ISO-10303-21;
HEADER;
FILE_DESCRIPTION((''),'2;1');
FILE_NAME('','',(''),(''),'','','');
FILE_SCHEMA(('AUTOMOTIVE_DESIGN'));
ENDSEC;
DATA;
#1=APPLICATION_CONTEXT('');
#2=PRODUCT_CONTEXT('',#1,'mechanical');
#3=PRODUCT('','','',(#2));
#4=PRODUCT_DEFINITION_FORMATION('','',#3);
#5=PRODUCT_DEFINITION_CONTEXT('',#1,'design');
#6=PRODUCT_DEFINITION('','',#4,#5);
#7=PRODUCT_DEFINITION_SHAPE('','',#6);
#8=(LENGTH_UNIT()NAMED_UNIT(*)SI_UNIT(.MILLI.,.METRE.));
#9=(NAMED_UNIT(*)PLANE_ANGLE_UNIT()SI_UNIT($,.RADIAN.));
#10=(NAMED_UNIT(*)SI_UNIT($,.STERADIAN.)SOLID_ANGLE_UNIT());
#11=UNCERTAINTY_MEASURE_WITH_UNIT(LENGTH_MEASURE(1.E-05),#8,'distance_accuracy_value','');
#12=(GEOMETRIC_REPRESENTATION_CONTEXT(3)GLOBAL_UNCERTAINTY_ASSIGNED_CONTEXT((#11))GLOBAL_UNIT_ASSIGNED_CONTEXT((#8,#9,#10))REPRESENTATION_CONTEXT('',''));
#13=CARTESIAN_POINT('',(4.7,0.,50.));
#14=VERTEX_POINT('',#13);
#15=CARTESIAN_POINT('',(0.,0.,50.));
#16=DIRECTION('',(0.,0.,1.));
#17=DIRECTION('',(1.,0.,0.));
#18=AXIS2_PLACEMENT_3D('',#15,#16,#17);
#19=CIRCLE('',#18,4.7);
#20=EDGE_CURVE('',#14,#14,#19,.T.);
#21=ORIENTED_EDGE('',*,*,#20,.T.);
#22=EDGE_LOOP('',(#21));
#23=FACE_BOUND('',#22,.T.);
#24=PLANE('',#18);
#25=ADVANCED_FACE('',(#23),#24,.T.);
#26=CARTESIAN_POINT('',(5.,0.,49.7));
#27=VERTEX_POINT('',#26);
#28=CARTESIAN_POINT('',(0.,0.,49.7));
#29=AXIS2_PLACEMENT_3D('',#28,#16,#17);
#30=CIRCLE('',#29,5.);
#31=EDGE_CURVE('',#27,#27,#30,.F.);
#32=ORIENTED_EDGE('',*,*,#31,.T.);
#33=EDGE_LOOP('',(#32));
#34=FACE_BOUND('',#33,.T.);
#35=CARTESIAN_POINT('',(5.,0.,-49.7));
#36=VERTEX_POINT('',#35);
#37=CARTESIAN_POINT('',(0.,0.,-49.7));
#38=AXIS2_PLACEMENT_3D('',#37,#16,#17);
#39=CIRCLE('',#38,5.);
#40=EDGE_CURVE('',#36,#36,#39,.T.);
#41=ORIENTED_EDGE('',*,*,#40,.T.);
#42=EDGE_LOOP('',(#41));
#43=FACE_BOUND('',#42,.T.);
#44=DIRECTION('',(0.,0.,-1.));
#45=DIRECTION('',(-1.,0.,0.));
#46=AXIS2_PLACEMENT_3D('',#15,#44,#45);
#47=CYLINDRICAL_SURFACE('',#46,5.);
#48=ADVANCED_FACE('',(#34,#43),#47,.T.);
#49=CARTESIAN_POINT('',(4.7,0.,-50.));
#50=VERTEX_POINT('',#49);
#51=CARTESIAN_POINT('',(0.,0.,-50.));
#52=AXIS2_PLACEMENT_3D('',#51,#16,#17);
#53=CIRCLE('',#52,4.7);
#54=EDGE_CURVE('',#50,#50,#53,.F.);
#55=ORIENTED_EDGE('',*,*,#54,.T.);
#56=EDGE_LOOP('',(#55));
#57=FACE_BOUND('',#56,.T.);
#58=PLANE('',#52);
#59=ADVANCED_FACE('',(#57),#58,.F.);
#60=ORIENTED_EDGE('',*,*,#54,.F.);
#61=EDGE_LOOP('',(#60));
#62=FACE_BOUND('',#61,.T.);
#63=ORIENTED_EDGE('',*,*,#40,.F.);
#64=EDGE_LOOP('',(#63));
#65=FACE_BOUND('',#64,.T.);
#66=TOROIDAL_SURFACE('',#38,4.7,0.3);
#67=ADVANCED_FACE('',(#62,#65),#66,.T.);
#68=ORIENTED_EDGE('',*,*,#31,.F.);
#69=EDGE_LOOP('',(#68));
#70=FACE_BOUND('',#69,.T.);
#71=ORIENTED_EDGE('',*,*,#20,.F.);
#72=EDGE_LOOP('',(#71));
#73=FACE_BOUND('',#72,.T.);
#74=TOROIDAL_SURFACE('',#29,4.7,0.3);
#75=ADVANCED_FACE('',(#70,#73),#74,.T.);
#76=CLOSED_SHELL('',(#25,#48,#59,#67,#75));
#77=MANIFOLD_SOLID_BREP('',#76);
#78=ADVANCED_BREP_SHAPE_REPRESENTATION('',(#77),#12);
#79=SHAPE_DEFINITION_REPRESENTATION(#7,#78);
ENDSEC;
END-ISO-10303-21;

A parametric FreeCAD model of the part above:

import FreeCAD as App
import Part
import Sketcher

V = App.Vector


def edges_at(feature, points):
    """Names of the edges that pass closest to the given points."""
    edges = feature.Shape.Edges
    near = lambda p: min(range(len(edges)), key=lambda i: edges[i].distToShape(Part.Vertex(*p))[0])
    return sorted({f"Edge{near(p) + 1}" for p in points})

doc = App.newDocument("Part")
body = doc.addObject("PartDesign::Body", "Body")

# Sketch on XY plane
sketch1 = body.newObject("Sketcher::SketchObject", "Sketch")
sketch1.AttachmentSupport = (doc.getObject("XY_Plane"), [""])
sketch1.MapMode = "FlatFace"
sketch1.addGeometry(Part.Circle(V(0, 0, 0), V(0, 0, 1), 5), False)
sketch1.addConstraint(Sketcher.Constraint("Coincident", 0, 3, -1, 1))
sketch1.addConstraint(Sketcher.Constraint("Diameter", 0, 10.0))
pad1 = body.newObject("PartDesign::Pad", "Pad")
pad1.Profile = sketch1
pad1.Length = 100
pad1.Midplane = True
doc.recompute()

fillet = body.newObject("PartDesign::Fillet", "Fillet")
fillet.Base = (pad1, edges_at(pad1, [(-5, 0, -50), (-5, 0, 50)]))
fillet.Radius = 0.3

doc.recompute()
